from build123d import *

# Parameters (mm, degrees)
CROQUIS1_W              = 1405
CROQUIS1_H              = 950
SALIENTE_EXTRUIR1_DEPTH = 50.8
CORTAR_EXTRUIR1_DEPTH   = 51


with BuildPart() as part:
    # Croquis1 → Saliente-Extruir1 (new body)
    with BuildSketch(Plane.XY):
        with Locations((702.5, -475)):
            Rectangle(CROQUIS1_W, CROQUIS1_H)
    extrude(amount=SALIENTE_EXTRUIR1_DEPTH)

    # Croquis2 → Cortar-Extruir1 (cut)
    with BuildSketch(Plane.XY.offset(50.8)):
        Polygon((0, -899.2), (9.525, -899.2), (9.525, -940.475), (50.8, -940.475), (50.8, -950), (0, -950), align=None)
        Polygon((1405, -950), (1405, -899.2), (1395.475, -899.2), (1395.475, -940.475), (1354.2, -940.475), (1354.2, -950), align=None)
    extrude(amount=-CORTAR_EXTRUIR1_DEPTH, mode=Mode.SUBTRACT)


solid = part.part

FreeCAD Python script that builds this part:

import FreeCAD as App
import Part
import Sketcher
Q = App.Units.Quantity

doc = App.newDocument("Part")
params = doc.addObject("Spreadsheet::Sheet", "Params")
for row, (alias, value) in enumerate([
    ("sketch1_width", "1405 mm"),
    ("sketch1_height", "950 mm"),
    ("pad1_length", "50.8 mm"),
    ("sketch2_width", "50.8 mm"),
    ("pocket1_length", "51 mm"),
], start=1):
    params.set(f"A{row}", alias)
    params.set(f"B{row}", "=" + value)
    params.setAlias(f"B{row}", alias)

body = doc.addObject("PartDesign::Body", "Body")

sketch1 = body.newObject("Sketcher::SketchObject", "Sketch")
sketch1.AttachmentSupport = (doc.getObject("XY_Plane"), [""])
sketch1.MapMode = "FlatFace"
sketch1.addGeometry(Part.LineSegment(App.Vector(0, 0, 0), App.Vector(0, -950, 0)), False)
sketch1.addGeometry(Part.LineSegment(App.Vector(0, -950, 0), App.Vector(1405, -950, 0)), False)
sketch1.addGeometry(Part.LineSegment(App.Vector(1405, -950, 0), App.Vector(1405, 0, 0)), False)
sketch1.addGeometry(Part.LineSegment(App.Vector(1405, 0, 0), App.Vector(0, 0, 0)), False)
sketch1.addConstraint(Sketcher.Constraint("Coincident", 0, 2, 1, 1))
sketch1.addConstraint(Sketcher.Constraint("Coincident", 1, 2, 2, 1))
sketch1.addConstraint(Sketcher.Constraint("Coincident", 2, 2, 3, 1))
sketch1.addConstraint(Sketcher.Constraint("Coincident", 3, 2, 0, 1))
sketch1.addConstraint(Sketcher.Constraint("Vertical", 0))
sketch1.addConstraint(Sketcher.Constraint("Horizontal", 1))
sketch1.addConstraint(Sketcher.Constraint("Vertical", 2))
sketch1.addConstraint(Sketcher.Constraint("Horizontal", 3))
sketch1.addConstraint(Sketcher.Constraint("Coincident", 3, 2, -1, 1))
sketch1.addConstraint(Sketcher.Constraint("DistanceX", 1, 1, 1, 2, Q("1405 mm")))
sketch1.addConstraint(Sketcher.Constraint("DistanceY", 0, 2, 0, 1, Q("950 mm")))
sketch1.setExpression("Constraints[9]", "Params.sketch1_width")
sketch1.setExpression("Constraints[10]", "Params.sketch1_height")
pad1 = body.newObject("PartDesign::Pad", "Pad")
pad1.Profile = sketch1
pad1.setExpression("Length", "Params.pad1_length")

sketch2 = body.newObject("Sketcher::SketchObject", "Sketch001")
sketch2.AttachmentSupport = (doc.getObject("XY_Plane"), [""])
sketch2.MapMode = "FlatFace"
sketch2.AttachmentOffset = App.Placement(App.Vector(0, 0, 50.8), App.Rotation())
sketch2.addGeometry(Part.LineSegment(App.Vector(10, -899, 0), App.Vector(0, -899, 0)), False)
sketch2.addGeometry(Part.LineSegment(App.Vector(0, -899, 0), App.Vector(0, -950, 0)), False)
sketch2.addGeometry(Part.LineSegment(App.Vector(0, -950, 0), App.Vector(51, -950, 0)), False)
sketch2.addGeometry(Part.LineSegment(App.Vector(51, -950, 0), App.Vector(51, -940, 0)), False)
sketch2.addGeometry(Part.LineSegment(App.Vector(51, -940, 0), App.Vector(10, -940, 0)), False)
sketch2.addGeometry(Part.LineSegment(App.Vector(10, -940, 0), App.Vector(10, -899, 0)), False)
sketch2.addGeometry(Part.LineSegment(App.Vector(1405, -950, 0), App.Vector(1405, -899, 0)), False)
sketch2.addGeometry(Part.LineSegment(App.Vector(1405, -899, 0), App.Vector(1395, -899, 0)), False)
sketch2.addGeometry(Part.LineSegment(App.Vector(1395, -899, 0), App.Vector(1395, -940, 0)), False)
sketch2.addGeometry(Part.LineSegment(App.Vector(1395, -940, 0), App.Vector(1354, -940, 0)), False)
sketch2.addGeometry(Part.LineSegment(App.Vector(1354, -940, 0), App.Vector(1354, -950, 0)), False)
sketch2.addGeometry(Part.LineSegment(App.Vector(1354, -950, 0), App.Vector(1405, -950, 0)), False)
sketch2.addConstraint(Sketcher.Constraint("Coincident", 0, 2, 1, 1))
sketch2.addConstraint(Sketcher.Constraint("Coincident", 1, 2, 2, 1))
sketch2.addConstraint(Sketcher.Constraint("Coincident", 2, 2, 3, 1))
sketch2.addConstraint(Sketcher.Constraint("Coincident", 3, 2, 4, 1))
sketch2.addConstraint(Sketcher.Constraint("Coincident", 4, 2, 5, 1))
sketch2.addConstraint(Sketcher.Constraint("Coincident", 5, 2, 0, 1))
sketch2.addConstraint(Sketcher.Constraint("Coincident", 6, 2, 7, 1))
sketch2.addConstraint(Sketcher.Constraint("Coincident", 7, 2, 8, 1))
sketch2.addConstraint(Sketcher.Constraint("Coincident", 8, 2, 9, 1))
sketch2.addConstraint(Sketcher.Constraint("Coincident", 9, 2, 10, 1))
sketch2.addConstraint(Sketcher.Constraint("Coincident", 10, 2, 11, 1))
sketch2.addConstraint(Sketcher.Constraint("Coincident", 11, 2, 6, 1))
sketch2.addConstraint(Sketcher.Constraint("Horizontal", 0))
sketch2.addConstraint(Sketcher.Constraint("Vertical", 1))
sketch2.addConstraint(Sketcher.Constraint("Horizontal", 2))
sketch2.addConstraint(Sketcher.Constraint("Vertical", 3))
sketch2.addConstraint(Sketcher.Constraint("Horizontal", 4))
sketch2.addConstraint(Sketcher.Constraint("Vertical", 5))
sketch2.addConstraint(Sketcher.Constraint("Vertical", 6))
sketch2.addConstraint(Sketcher.Constraint("Horizontal", 7))
sketch2.addConstraint(Sketcher.Constraint("Vertical", 8))
sketch2.addConstraint(Sketcher.Constraint("Horizontal", 9))
sketch2.addConstraint(Sketcher.Constraint("Vertical", 10))
sketch2.addConstraint(Sketcher.Constraint("Horizontal", 11))
sketch2.addConstraint(Sketcher.Constraint("PointOnObject", 0, 2, -2))
sketch2.addConstraint(Sketcher.Constraint("Horizontal", 5, 2, 6, 2))
sketch2.addConstraint(Sketcher.Constraint("Horizontal", 4, 2, 8, 2))
sketch2.addConstraint(Sketcher.Constraint("Horizontal", 2, 2, 10, 2))
sketch2.addConstraint(Sketcher.Constraint("Equal", 0, 7))
sketch2.addConstraint(Sketcher.Constraint("Equal", 4, 9))
sketch2.addConstraint(Sketcher.Constraint("Equal", 11, 1))
sketch2.addConstraint(Sketcher.Constraint("Equal", 7, 3))
sketch2.addConstraint(Sketcher.Constraint("DistanceX", 2, 1, 2, 2, Q("50.8 mm")))
sketch2.addConstraint(Sketcher.Constraint("DistanceY", 1, 2, -1, 1, Q("950 mm")))
sketch2.addConstraint(Sketcher.Constraint("DistanceX", -1, 1, 6, 2, Q("1405 mm")))
sketch2.addConstraint(Sketcher.Constraint("DistanceX", 0, 2, 0, 1, Q("9.525 mm")))
sketch2.setExpression("Constraints[32]", "Params.sketch2_width")
pocket1 = body.newObject("PartDesign::Pocket", "Pocket")
pocket1.Profile = sketch2
pocket1.setExpression("Length", "Params.pocket1_length")

doc.recompute()
